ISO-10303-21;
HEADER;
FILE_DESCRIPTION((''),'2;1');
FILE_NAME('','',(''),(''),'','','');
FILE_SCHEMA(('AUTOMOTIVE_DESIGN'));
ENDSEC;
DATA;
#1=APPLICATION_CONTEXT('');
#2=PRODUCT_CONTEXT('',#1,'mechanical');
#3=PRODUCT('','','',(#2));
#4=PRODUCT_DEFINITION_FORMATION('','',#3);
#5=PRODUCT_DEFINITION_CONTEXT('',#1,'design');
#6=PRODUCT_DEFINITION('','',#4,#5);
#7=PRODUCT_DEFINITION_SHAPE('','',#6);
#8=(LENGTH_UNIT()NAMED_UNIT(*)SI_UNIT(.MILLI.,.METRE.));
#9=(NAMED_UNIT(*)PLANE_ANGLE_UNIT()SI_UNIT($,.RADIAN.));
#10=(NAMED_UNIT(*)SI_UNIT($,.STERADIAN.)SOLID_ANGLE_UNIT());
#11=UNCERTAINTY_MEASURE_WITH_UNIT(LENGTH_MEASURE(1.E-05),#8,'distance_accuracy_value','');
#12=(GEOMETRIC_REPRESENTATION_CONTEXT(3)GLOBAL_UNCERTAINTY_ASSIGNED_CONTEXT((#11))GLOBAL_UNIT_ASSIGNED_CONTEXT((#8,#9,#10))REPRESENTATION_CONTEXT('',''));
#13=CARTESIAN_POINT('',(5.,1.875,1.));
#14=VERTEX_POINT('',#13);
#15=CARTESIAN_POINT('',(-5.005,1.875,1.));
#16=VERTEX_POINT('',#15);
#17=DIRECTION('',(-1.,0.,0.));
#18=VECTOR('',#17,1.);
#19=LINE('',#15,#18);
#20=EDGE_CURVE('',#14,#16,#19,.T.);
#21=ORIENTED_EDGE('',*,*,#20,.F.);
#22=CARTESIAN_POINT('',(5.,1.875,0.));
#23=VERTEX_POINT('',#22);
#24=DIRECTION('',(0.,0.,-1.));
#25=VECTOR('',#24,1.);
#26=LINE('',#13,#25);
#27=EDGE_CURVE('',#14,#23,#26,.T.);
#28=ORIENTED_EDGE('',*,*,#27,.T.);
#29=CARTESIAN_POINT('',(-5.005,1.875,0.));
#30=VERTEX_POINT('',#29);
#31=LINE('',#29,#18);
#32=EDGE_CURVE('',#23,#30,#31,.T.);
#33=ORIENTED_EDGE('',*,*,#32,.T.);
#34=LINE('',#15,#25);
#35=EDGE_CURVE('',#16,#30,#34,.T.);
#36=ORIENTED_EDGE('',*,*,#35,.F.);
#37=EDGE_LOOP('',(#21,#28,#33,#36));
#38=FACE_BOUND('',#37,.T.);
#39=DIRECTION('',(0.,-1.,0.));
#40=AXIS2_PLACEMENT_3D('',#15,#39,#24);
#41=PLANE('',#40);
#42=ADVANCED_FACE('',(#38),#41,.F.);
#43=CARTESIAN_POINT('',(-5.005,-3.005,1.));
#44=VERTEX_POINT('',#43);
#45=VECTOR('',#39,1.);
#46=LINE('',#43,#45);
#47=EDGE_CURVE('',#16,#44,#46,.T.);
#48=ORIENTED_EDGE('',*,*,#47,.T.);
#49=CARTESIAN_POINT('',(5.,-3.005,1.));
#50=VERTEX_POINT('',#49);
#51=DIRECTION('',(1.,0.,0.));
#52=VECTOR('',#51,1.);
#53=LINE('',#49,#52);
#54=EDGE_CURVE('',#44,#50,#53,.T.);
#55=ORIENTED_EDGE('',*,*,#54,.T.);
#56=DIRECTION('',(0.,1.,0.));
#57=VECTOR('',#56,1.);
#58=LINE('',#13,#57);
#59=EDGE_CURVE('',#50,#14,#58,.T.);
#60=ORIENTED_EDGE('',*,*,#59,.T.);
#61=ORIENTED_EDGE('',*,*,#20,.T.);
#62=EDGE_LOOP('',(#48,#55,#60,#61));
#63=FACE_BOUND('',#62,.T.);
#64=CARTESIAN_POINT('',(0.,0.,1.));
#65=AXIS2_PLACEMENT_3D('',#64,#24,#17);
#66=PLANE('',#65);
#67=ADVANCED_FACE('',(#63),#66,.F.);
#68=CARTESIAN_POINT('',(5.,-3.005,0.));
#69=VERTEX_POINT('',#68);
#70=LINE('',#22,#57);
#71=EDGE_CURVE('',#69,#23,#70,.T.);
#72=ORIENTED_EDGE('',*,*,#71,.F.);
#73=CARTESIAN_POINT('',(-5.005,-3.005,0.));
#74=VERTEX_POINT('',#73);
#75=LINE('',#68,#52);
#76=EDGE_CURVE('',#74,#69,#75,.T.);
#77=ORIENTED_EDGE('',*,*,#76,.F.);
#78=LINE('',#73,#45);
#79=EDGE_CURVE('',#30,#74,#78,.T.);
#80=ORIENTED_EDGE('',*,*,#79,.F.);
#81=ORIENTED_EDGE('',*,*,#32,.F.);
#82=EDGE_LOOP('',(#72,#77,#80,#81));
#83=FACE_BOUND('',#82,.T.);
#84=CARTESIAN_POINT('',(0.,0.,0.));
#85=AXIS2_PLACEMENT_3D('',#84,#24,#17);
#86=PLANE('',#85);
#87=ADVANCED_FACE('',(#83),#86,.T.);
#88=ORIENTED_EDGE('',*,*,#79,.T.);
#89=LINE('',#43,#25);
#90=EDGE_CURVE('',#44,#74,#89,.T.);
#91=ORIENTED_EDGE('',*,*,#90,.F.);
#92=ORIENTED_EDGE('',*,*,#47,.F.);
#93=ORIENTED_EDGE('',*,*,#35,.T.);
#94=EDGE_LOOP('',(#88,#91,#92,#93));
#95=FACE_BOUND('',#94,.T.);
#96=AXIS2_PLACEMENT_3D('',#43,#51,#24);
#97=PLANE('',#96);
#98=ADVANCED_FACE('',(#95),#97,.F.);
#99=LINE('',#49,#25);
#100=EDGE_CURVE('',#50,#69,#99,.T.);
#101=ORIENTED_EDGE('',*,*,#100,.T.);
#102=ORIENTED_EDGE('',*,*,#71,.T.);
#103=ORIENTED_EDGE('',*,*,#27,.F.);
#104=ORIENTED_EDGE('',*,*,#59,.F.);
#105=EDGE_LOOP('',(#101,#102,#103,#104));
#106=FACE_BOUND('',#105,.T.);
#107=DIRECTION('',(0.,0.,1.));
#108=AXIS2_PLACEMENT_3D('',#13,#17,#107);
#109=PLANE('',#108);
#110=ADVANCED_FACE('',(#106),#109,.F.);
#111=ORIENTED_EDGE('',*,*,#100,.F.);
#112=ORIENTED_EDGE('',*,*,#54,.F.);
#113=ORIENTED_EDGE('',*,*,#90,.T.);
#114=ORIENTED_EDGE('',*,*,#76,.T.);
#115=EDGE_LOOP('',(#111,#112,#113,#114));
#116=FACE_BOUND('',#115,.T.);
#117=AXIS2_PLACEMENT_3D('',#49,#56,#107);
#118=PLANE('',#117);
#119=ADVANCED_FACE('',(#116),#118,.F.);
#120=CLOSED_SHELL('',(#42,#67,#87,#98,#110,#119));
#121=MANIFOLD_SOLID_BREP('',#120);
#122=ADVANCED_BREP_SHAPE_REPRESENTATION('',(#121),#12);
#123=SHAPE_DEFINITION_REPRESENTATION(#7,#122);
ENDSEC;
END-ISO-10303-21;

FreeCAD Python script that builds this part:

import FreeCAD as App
import Part
import Sketcher


def add_polygon(sketch, points):
    """Adds a closed chain of lines whose ends are joined by coincident constraints."""
    first, n = sketch.GeometryCount, len(points)
    for a, b in zip(points, points[1:] + points[:1]):
        sketch.addGeometry(Part.LineSegment(App.Vector(*a, 0), App.Vector(*b, 0)), False)
    for i in range(n):
        sketch.addConstraint(Sketcher.Constraint("Coincident", first + i, 2, first + (i + 1) % n, 1))

doc = App.newDocument("Part")
body = doc.addObject("PartDesign::Body", "Body")

sketch1 = body.newObject("Sketcher::SketchObject", "Sketch")
sketch1.AttachmentSupport = (doc.getObject("XY_Plane"), [""])
sketch1.MapMode = "FlatFace"
add_polygon(sketch1, [(-5.005, 1.875), (-5.005, -3.005), (5, -3.005), (5, 1.875)])
sketch1.addConstraint(Sketcher.Constraint("Vertical", 0))
sketch1.addConstraint(Sketcher.Constraint("Horizontal", 1))
sketch1.addConstraint(Sketcher.Constraint("Vertical", 2))
sketch1.addConstraint(Sketcher.Constraint("Horizontal", 3))
sketch1.addConstraint(Sketcher.Constraint("DistanceX", -1, 1, 1, 2, 5.0))
sketch1.addConstraint(Sketcher.Constraint("DistanceY", 0, 2, 0, 1, 4.88))
sketch1.addConstraint(Sketcher.Constraint("DistanceX", 1, 1, 1, 2, 10.005))
sketch1.addConstraint(Sketcher.Constraint("DistanceY", 0, 2, -1, 1, 3.005))
pad1 = body.newObject("PartDesign::Pad", "Pad")
pad1.Profile = sketch1
pad1.Length = 1

doc.recompute()
